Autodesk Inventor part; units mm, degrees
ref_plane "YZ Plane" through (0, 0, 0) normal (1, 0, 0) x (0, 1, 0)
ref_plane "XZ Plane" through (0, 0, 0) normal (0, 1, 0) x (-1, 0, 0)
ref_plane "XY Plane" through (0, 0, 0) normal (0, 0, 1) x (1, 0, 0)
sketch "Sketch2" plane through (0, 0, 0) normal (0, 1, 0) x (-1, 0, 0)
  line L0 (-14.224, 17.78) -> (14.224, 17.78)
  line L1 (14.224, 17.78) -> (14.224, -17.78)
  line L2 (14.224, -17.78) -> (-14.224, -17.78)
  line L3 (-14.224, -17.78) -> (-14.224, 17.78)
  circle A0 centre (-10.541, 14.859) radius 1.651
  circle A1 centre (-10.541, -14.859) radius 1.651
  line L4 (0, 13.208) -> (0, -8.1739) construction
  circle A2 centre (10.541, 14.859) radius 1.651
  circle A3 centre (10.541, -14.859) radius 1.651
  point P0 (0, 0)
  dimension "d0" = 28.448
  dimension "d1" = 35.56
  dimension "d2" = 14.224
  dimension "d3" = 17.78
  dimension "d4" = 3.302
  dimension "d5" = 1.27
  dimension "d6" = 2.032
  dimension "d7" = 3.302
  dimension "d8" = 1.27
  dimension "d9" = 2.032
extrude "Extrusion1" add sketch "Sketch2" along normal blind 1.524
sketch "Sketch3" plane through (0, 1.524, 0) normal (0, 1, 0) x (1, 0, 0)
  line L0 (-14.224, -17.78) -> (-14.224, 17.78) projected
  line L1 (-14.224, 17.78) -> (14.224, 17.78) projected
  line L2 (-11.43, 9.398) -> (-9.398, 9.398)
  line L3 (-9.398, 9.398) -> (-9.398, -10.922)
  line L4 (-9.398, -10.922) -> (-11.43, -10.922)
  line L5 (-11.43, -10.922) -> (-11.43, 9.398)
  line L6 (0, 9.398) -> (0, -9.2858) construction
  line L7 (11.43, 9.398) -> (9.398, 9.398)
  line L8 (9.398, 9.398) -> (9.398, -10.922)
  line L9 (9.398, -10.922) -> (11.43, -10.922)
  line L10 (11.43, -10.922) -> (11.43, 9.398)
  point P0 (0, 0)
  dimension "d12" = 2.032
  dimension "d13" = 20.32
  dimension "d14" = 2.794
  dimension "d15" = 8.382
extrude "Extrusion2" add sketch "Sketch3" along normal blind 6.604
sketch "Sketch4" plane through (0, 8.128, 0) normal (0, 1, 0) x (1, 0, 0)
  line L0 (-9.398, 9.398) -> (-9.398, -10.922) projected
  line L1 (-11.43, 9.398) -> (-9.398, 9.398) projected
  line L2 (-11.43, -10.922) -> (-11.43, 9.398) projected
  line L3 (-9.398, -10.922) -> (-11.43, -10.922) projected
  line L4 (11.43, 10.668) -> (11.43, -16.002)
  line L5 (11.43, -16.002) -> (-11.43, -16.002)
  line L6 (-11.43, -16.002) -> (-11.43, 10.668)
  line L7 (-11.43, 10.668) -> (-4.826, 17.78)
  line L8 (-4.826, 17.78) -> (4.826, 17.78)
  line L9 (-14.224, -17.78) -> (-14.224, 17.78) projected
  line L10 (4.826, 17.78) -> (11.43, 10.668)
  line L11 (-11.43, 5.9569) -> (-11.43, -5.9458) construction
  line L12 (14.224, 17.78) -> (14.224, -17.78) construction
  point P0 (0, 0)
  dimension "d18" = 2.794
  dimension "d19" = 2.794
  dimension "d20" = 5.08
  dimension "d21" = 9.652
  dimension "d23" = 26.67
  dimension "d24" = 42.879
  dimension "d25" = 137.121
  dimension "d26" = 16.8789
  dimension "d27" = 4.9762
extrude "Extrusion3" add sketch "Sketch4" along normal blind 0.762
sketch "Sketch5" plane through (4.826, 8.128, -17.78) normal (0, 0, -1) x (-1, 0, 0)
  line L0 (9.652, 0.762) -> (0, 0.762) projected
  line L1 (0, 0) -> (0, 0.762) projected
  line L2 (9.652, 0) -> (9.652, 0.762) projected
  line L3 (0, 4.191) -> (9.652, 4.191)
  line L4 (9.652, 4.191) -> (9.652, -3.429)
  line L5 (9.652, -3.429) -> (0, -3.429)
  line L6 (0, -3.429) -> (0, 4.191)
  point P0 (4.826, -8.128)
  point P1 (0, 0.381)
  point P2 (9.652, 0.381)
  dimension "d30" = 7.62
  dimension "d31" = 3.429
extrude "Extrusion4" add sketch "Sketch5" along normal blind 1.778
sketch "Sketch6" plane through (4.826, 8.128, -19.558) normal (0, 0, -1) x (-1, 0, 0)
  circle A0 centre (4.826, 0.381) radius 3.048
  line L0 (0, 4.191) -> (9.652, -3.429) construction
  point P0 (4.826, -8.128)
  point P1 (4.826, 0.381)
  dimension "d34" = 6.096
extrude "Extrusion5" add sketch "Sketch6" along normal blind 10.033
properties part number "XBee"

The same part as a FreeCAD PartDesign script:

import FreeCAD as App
import Part
import Sketcher
from FreeCAD import Vector
Q = App.Units.Quantity


def add_polygon(sketch, points):
    """Adds a closed chain of lines whose ends are joined by coincident constraints."""
    first, n = sketch.GeometryCount, len(points)
    for a, b in zip(points, points[1:] + points[:1]):
        sketch.addGeometry(Part.LineSegment(App.Vector(*a, 0), App.Vector(*b, 0)), False)
    for i in range(n):
        sketch.addConstraint(Sketcher.Constraint("Coincident", first + i, 2, first + (i + 1) % n, 1))

doc = App.newDocument("Part")
body = doc.addObject("PartDesign::Body", "Body")

sketch1 = doc.addObject("Sketcher::SketchObject", "Sketch")
body.addObject(sketch1)
sketch1.AttachmentSupport = (doc.XZ_Plane, [""])
sketch1.MapMode = "FlatFace"
add_polygon(sketch1, [(-14.2, 17.8), (14.2, 17.8), (14.2, -17.8), (-14.2, -17.8)])
sketch1.addGeometry(Part.Circle(Vector(10.5, -14.9, 0), Vector(0, 0, 1), 1.7), False)
sketch1.addGeometry(Part.Circle(Vector(-10.5, -14.9, 0), Vector(0, 0, 1), 1.7), False)
sketch1.addGeometry(Part.Circle(Vector(10.5, 14.9, 0), Vector(0, 0, 1), 1.7), False)
sketch1.addGeometry(Part.Circle(Vector(-10.5, 14.9, 0), Vector(0, 0, 1), 1.7), False)
sketch1.addConstraint(Sketcher.Constraint("Horizontal", 0))
sketch1.addConstraint(Sketcher.Constraint("Vertical", 1))
sketch1.addConstraint(Sketcher.Constraint("Horizontal", 2))
sketch1.addConstraint(Sketcher.Constraint("Vertical", 3))
sketch1.addConstraint(Sketcher.Constraint("Equal", 4, 5))
sketch1.addConstraint(Sketcher.Constraint("Equal", 5, 6))
sketch1.addConstraint(Sketcher.Constraint("Equal", 6, 7))
sketch1.addConstraint(Sketcher.Constraint("Symmetric", 5, 3, 6, 3, -1, 1))
sketch1.addConstraint(Sketcher.Constraint("Symmetric", 4, 3, 7, 3, -1, 1))
sketch1.addConstraint(Sketcher.Constraint("Symmetric", 0, 2, 2, 2, -1, 1))
sketch1.addConstraint(Sketcher.Constraint("Symmetric", 4, 3, 5, 3, -2))
sketch1.addConstraint(Sketcher.Constraint("Diameter", 4, Q("0.13 in")))
sketch1.addConstraint(Sketcher.Constraint("DistanceY", 1, 2, 1, 1, Q("1.4 in")))
sketch1.addConstraint(Sketcher.Constraint("DistanceX", 0, 1, 0, 2, Q("1.12 in")))
sketch1.addConstraint(Sketcher.Constraint("DistanceX", 5, 3, 4, 3, Q("0.83 in")))
sketch1.addConstraint(Sketcher.Constraint("DistanceY", 4, 3, 6, 3, Q("1.17 in")))
pad1 = doc.addObject("PartDesign::Pad", "Pad")
body.addObject(pad1)
pad1.Profile = sketch1
pad1.Length = Q("0.06 in")
pad1.Reversed = True

sketch2 = doc.addObject("Sketcher::SketchObject", "Sketch001")
body.addObject(sketch2)
sketch2.AttachmentSupport = (doc.XZ_Plane, [""])
sketch2.MapMode = "FlatFace"
sketch2.AttachmentOffset = App.Placement(Vector(0, 0, -0.06 * 25.4), App.Rotation())
add_polygon(sketch2, [(-9.4, -9.4), (-11.4, -9.4), (-11.4, 10.9), (-9.4, 10.9)])
add_polygon(sketch2, [(11.4, 10.9), (11.4, -9.4), (9.4, -9.4), (9.4, 10.9)])
sketch2.addConstraint(Sketcher.Constraint("Horizontal", 0))
sketch2.addConstraint(Sketcher.Constraint("Vertical", 1))
sketch2.addConstraint(Sketcher.Constraint("Horizontal", 2))
sketch2.addConstraint(Sketcher.Constraint("Vertical", 3))
sketch2.addConstraint(Sketcher.Constraint("Vertical", 4))
sketch2.addConstraint(Sketcher.Constraint("Horizontal", 5))
sketch2.addConstraint(Sketcher.Constraint("Vertical", 6))
sketch2.addConstraint(Sketcher.Constraint("Horizontal", 7))
sketch2.addConstraint(Sketcher.Constraint("Symmetric", 0, 2, 4, 2, -2))
sketch2.addConstraint(Sketcher.Constraint("Symmetric", 2, 2, 6, 2, -2))
sketch2.addConstraint(Sketcher.Constraint("DistanceY", 1, 1, 1, 2, Q("0.8 in")))
sketch2.addConstraint(Sketcher.Constraint("DistanceX", 0, 2, 0, 1, Q("0.08 in")))
sketch2.addConstraint(Sketcher.Constraint("DistanceX", 0, 2, 4, 2, Q("0.9 in")))
sketch2.addConstraint(Sketcher.Constraint("DistanceY", 0, 2, -1, 1, Q("0.37 in")))
pad2 = doc.addObject("PartDesign::Pad", "Pad001")
body.addObject(pad2)
pad2.Profile = sketch2
pad2.Length = Q("0.26 in")
pad2.Reversed = True

sketch3 = doc.addObject("Sketcher::SketchObject", "Sketch002")
body.addObject(sketch3)
sketch3.AttachmentSupport = (doc.XZ_Plane, [""])
sketch3.MapMode = "FlatFace"
sketch3.AttachmentOffset = App.Placement(Vector(0, 0, -0.32 * 25.4), App.Rotation())
add_polygon(sketch3, [(-11, -11), (-11, 16), (11, 16), (11, -11), (5, -18), (-5, -18)])
sketch3.addConstraint(Sketcher.Constraint("Vertical", 0))
sketch3.addConstraint(Sketcher.Constraint("Horizontal", 1))
sketch3.addConstraint(Sketcher.Constraint("Vertical", 2))
sketch3.addConstraint(Sketcher.Constraint("Horizontal", 4))
sketch3.addConstraint(Sketcher.Constraint("Symmetric", 2, 2, 5, 2, -2))
sketch3.addConstraint(Sketcher.Constraint("Equal", 3, 5))
sketch3.addConstraint(Sketcher.Constraint("DistanceX", 4, 2, 4, 1, Q("0.38 in")))
sketch3.addConstraint(Sketcher.Constraint("DistanceY", 0, 1, 0, 2, Q("1.05 in")))
sketch3.addConstraint(Sketcher.Constraint("DistanceX", 1, 1, 1, 2, Q("0.9 in")))
sketch3.addConstraint(Sketcher.Constraint("DistanceY", 3, 2, -1, 1, Q("0.7 in")))
sketch3.addConstraint(Sketcher.Constraint("DistanceY", -1, 1, 0, 2, Q("0.63 in")))
pad3 = doc.addObject("PartDesign::Pad", "Pad002")
body.addObject(pad3)
pad3.Profile = sketch3
pad3.Length = Q("0.03 in")
pad3.Reversed = True

sketch4 = doc.addObject("Sketcher::SketchObject", "Sketch003")
body.addObject(sketch4)
sketch4.AttachmentSupport = (doc.XY_Plane, [""])
sketch4.MapMode = "FlatFace"
sketch4.AttachmentOffset = App.Placement(Vector(0, 0, -0.7 * 25.4), App.Rotation())
add_polygon(sketch4, [(-5, 12), (5, 12), (5, 5), (-5, 5)])
sketch4.addConstraint(Sketcher.Constraint("Horizontal", 0))
sketch4.addConstraint(Sketcher.Constraint("Vertical", 1))
sketch4.addConstraint(Sketcher.Constraint("Horizontal", 2))
sketch4.addConstraint(Sketcher.Constraint("Vertical", 3))
sketch4.addConstraint(Sketcher.Constraint("DistanceY", 1, 2, 1, 1, Q("0.3 in")))
sketch4.addConstraint(Sketcher.Constraint("DistanceX", 0, 1, 0, 2, Q("0.38 in")))
sketch4.addConstraint(Sketcher.Constraint("DistanceX", -1, 1, 0, 2, Q("0.19 in")))
sketch4.addConstraint(Sketcher.Constraint("DistanceY", -1, 1, 0, 2, Q("0.485 in")))
pad4 = doc.addObject("PartDesign::Pad", "Pad003")
body.addObject(pad4)
pad4.Profile = sketch4
pad4.Length = Q("0.07 in")
pad4.Reversed = True

sketch5 = doc.addObject("Sketcher::SketchObject", "Sketch004")
body.addObject(sketch5)
sketch5.AttachmentSupport = (doc.XY_Plane, [""])
sketch5.MapMode = "FlatFace"
sketch5.AttachmentOffset = App.Placement(Vector(0, 0, -0.77 * 25.4), App.Rotation())
sketch5.addGeometry(Part.Circle(Vector(0, 8.5, 0), Vector(0, 0, 1), 3), False)
sketch5.addConstraint(Sketcher.Constraint("PointOnObject", 0, 3, -2))
sketch5.addConstraint(Sketcher.Constraint("Diameter", 0, Q("0.24 in")))
sketch5.addConstraint(Sketcher.Constraint("DistanceY", -1, 1, 0, 3, Q("0.335 in")))
pad5 = doc.addObject("PartDesign::Pad", "Pad004")
body.addObject(pad5)
pad5.Profile = sketch5
pad5.Length = Q("0.395 in")
pad5.Reversed = True

doc.recompute()
